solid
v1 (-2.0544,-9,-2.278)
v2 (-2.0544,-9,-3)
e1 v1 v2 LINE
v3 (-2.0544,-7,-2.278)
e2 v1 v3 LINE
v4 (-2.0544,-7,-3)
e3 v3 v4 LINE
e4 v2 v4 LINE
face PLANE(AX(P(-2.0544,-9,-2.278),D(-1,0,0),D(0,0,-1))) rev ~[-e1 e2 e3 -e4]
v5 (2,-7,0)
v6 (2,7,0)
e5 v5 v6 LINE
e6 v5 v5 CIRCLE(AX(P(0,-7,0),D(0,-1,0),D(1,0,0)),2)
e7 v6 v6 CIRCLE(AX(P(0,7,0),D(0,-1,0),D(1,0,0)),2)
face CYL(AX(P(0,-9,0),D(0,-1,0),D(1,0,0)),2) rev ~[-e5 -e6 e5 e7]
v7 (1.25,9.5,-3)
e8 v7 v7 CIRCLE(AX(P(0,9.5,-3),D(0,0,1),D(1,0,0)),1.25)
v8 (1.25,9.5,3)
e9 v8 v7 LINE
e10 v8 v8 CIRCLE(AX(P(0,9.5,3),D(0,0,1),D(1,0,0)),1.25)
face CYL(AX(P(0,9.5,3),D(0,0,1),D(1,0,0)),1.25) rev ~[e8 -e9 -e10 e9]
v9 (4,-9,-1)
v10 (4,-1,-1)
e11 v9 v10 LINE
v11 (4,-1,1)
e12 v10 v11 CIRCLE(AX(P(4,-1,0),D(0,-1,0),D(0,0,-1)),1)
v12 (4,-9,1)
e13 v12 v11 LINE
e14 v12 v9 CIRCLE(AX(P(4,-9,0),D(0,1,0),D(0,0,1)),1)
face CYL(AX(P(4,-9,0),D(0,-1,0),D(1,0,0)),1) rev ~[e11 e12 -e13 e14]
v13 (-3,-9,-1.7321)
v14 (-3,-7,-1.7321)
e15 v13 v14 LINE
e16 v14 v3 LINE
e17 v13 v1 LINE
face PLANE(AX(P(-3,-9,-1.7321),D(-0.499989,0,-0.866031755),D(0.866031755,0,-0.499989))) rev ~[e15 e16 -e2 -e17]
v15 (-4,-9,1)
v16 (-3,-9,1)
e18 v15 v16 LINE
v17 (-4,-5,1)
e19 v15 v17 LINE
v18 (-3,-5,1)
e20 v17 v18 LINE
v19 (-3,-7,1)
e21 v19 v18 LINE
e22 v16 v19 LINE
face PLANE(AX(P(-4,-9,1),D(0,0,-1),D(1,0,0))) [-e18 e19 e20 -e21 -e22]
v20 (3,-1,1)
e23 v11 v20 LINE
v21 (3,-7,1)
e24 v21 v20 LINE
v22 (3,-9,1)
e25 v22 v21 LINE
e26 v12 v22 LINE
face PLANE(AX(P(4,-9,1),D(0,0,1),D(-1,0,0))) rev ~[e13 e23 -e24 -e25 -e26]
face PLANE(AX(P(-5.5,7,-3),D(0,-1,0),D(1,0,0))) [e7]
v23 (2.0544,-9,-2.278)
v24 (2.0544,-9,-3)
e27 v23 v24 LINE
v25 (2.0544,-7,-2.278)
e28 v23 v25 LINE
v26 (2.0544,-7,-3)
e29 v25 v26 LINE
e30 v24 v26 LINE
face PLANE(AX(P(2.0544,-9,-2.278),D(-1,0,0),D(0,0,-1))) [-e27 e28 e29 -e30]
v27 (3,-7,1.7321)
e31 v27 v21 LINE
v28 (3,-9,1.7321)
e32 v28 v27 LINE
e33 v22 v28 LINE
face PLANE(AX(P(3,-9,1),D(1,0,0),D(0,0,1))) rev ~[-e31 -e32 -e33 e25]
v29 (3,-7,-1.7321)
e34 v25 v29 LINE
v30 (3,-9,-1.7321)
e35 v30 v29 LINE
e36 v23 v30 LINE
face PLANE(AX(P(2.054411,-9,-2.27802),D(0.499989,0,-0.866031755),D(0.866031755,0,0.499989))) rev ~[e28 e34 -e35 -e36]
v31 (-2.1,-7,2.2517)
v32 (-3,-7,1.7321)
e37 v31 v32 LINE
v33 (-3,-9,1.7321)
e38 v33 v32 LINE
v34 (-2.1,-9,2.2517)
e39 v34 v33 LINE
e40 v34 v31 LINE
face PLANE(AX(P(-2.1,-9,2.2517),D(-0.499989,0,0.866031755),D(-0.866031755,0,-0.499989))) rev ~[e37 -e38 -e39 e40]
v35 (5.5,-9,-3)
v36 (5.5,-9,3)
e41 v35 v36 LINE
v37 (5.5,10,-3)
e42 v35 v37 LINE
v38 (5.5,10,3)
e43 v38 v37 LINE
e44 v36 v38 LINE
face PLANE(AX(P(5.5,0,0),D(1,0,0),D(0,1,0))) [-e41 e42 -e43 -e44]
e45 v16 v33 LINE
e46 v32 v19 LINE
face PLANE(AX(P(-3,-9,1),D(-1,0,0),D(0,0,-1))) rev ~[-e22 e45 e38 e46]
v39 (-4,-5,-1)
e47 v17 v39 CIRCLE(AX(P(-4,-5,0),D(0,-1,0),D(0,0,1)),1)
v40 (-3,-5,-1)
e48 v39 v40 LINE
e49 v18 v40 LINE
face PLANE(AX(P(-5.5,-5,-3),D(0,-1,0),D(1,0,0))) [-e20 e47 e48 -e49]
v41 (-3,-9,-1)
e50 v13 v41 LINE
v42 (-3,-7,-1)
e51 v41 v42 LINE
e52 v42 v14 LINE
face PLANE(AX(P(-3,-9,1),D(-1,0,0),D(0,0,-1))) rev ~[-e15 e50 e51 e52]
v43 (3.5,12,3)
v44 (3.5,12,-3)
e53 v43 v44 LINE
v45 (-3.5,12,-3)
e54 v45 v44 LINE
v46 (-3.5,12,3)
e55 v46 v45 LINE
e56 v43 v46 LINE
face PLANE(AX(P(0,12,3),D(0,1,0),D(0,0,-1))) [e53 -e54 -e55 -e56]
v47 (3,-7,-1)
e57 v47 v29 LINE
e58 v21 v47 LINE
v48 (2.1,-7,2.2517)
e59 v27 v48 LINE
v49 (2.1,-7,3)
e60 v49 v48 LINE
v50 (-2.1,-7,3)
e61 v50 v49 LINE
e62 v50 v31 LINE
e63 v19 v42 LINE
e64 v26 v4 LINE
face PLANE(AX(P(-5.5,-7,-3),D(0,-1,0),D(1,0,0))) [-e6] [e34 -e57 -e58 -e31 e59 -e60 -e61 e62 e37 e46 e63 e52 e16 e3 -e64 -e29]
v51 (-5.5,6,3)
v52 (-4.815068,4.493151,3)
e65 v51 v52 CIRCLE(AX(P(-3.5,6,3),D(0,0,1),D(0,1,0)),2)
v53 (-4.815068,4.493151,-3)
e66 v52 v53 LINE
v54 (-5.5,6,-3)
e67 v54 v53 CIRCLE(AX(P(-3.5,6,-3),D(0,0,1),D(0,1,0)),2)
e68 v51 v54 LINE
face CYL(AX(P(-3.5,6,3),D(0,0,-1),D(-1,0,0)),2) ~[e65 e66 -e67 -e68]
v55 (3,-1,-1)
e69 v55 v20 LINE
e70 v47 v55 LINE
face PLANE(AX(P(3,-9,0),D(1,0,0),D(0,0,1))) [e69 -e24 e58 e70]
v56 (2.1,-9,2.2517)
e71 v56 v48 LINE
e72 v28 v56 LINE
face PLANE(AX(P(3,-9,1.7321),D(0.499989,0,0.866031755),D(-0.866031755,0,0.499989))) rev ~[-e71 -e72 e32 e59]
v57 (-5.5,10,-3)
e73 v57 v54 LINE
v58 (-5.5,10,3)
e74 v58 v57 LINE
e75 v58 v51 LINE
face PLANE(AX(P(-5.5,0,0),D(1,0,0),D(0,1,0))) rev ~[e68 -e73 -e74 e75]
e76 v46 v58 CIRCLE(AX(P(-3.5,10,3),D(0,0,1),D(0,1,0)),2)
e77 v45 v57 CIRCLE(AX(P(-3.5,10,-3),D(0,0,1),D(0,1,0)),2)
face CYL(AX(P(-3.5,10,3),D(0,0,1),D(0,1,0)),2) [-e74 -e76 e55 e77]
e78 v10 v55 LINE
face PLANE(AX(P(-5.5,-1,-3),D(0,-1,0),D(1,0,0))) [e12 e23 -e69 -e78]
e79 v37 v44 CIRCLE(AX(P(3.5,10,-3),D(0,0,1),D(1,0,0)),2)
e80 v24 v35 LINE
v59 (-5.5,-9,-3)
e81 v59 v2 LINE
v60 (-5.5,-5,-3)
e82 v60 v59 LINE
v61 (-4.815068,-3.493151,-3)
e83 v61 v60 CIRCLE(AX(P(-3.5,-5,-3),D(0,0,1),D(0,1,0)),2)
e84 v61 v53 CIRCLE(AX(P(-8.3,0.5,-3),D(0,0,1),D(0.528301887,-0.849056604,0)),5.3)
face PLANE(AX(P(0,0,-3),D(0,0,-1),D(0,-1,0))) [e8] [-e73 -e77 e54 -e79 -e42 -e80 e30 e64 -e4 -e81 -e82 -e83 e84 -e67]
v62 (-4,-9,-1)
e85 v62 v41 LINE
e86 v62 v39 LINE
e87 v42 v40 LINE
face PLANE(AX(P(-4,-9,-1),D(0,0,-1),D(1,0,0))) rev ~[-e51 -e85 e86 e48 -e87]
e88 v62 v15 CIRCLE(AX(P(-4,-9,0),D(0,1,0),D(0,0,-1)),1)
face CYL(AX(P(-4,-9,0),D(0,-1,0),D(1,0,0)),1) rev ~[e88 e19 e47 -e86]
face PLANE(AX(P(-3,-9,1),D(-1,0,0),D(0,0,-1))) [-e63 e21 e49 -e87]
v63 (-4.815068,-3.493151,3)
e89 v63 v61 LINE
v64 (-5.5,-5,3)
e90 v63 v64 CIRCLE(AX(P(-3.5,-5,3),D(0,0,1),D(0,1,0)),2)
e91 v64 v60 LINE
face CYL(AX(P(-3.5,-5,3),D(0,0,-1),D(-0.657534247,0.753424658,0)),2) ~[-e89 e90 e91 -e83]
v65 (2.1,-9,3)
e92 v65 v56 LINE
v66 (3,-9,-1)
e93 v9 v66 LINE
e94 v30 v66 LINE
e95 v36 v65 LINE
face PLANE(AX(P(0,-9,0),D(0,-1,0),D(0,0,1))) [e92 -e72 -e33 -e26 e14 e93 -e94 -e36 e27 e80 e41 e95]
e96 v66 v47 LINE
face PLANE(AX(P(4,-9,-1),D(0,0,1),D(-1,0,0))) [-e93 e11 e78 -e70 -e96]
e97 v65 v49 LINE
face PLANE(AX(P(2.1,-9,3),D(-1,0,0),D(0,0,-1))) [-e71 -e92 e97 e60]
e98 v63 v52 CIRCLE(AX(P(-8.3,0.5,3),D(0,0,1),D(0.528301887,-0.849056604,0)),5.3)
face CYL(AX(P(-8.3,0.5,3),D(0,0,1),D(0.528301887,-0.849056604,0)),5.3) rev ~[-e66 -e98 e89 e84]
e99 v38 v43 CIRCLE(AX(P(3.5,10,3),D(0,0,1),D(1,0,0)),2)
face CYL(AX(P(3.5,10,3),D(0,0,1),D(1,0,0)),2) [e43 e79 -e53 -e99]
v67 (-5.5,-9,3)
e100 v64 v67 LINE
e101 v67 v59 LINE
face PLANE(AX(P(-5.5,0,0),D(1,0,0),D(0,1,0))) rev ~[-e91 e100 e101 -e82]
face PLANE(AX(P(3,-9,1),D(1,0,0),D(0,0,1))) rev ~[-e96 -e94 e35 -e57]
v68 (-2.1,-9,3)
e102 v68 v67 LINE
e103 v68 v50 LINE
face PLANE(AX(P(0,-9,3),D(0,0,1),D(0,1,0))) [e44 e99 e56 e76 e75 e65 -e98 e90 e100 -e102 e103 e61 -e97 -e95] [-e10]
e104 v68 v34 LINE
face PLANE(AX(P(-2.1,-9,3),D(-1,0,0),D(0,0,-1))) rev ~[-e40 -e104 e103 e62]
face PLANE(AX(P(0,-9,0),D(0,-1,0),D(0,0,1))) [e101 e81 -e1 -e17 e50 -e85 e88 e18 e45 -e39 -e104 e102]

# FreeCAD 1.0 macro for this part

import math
import FreeCAD as App
import Part
import Sketcher
Q = App.Units.Quantity


def edges_at(feature, points):
    """Names of the edges that pass closest to the given points."""
    edges = feature.Shape.Edges
    near = lambda p: min(range(len(edges)), key=lambda i: edges[i].distToShape(Part.Vertex(*p))[0])
    return sorted({f"Edge{near(p) + 1}" for p in points})


def add_polygon(sketch, points):
    """Adds a closed chain of lines whose ends are joined by coincident constraints."""
    first, n = sketch.GeometryCount, len(points)
    for a, b in zip(points, points[1:] + points[:1]):
        sketch.addGeometry(Part.LineSegment(App.Vector(*a, 0), App.Vector(*b, 0)), False)
    for i in range(n):
        sketch.addConstraint(Sketcher.Constraint("Coincident", first + i, 2, first + (i + 1) % n, 1))

doc = App.newDocument("Part")
body = doc.addObject("PartDesign::Body", "Body")

sketch1 = body.newObject("Sketcher::SketchObject", "Sketch")
sketch1.AttachmentSupport = (doc.getObject("YZ_Plane"), [""])
sketch1.MapMode = "FlatFace"
add_polygon(sketch1, [(-9, 3), (-9, -3), (12, -3), (12, 3)])
sketch1.addConstraint([
    Sketcher.Constraint("Vertical", 0),
    Sketcher.Constraint("Horizontal", 1),
    Sketcher.Constraint("Vertical", 2),
    Sketcher.Constraint("Horizontal", 3),
    Sketcher.Constraint("DistanceY", 0, 2, 0, 1, 6.0),
    Sketcher.Constraint("DistanceX", -1, 1, 1, 2, 12.0),
    Sketcher.Constraint("DistanceX", 1, 1, 1, 2, 21.0),
    Sketcher.Constraint("DistanceY", 0, 2, -1, 1, 3.0),
])
pad1 = body.newObject("PartDesign::Pad", "Pad")
pad1.Profile = sketch1
pad1.Length = 11
pad1.Midplane = True

sketch2 = body.newObject("Sketcher::SketchObject", "Sketch001")
sketch2.AttachmentSupport = (doc.getObject("XZ_Plane"), [""])
sketch2.MapMode = "FlatFace"
sketch2.AttachmentOffset = App.Placement(App.Vector(0, 0, 9), App.Rotation())
sketch2.addGeometry([
    Part.LineSegment(App.Vector(4, 1, 0), App.Vector(3, 1, 0)),
    Part.LineSegment(App.Vector(3, 1, 0), App.Vector(3, -1, 0)),
    Part.LineSegment(App.Vector(3, -1, 0), App.Vector(4, -1, 0)),
    Part.ArcOfCircle(Part.Circle(App.Vector(4, 0, 0), App.Vector(0, 0, 1), 1), math.radians(-90), math.radians(90)),
], False)
sketch2.addConstraint([
    Sketcher.Constraint("Coincident", 0, 2, 1, 1),
    Sketcher.Constraint("Coincident", 1, 2, 2, 1),
    Sketcher.Constraint("Tangent", 2, 2, 3, 1),
    Sketcher.Constraint("Tangent", 3, 2, 0, 1),
    Sketcher.Constraint("Horizontal", 0),
    Sketcher.Constraint("Vertical", 1),
    Sketcher.Constraint("Horizontal", 2),
    Sketcher.Constraint("PointOnObject", 3, 3, -1),
    Sketcher.Constraint("Radius", 3, 1.0),
    Sketcher.Constraint("DistanceX", -1, 1, 3, 3, 4.0),
    Sketcher.Constraint("DistanceX", 0, 2, 0, 1, 1.0),
])
pocket1 = body.newObject("PartDesign::Pocket", "Pocket")
pocket1.Profile = sketch2
pocket1.Length = 8

sketch3 = body.newObject("Sketcher::SketchObject", "Sketch002")
sketch3.AttachmentSupport = (doc.getObject("XZ_Plane"), [""])
sketch3.MapMode = "FlatFace"
sketch3.AttachmentOffset = App.Placement(App.Vector(0, 0, 9), App.Rotation())
add_polygon(sketch3, [(-3, -1.7), (-2.1, -2.3), (-2.1, -3), (-0.8, -3), (0, -3.5), (0.8, -3), (2.1, -3), (2.1, -2.3), (3, -1.7), (3, 1.7), (2.1, 2.3), (2.1, 3), (0.8, 3), (0, 3.5), (-0.8, 3), (-2.1, 3), (-2.1, 2.3), (-3, 1.7)])
sketch3.addConstraint([
    Sketcher.Constraint("Vertical", 1),
    Sketcher.Constraint("Horizontal", 2),
    Sketcher.Constraint("Horizontal", 5),
    Sketcher.Constraint("Vertical", 6),
    Sketcher.Constraint("Vertical", 8),
    Sketcher.Constraint("Vertical", 10),
    Sketcher.Constraint("Horizontal", 11),
    Sketcher.Constraint("Horizontal", 14),
    Sketcher.Constraint("Vertical", 15),
    Sketcher.Constraint("Vertical", 17),
    Sketcher.Constraint("Symmetric", 2, 2, 11, 2, -1, 1),
    Sketcher.Constraint("Symmetric", 3, 2, 12, 2, -1, 1),
    Sketcher.Constraint("Symmetric", 4, 2, 13, 2, -1, 1),
    Sketcher.Constraint("Symmetric", 7, 2, 16, 2, -1, 1),
    Sketcher.Constraint("Symmetric", 2, 2, 4, 2, -2),
    Sketcher.Constraint("Symmetric", 0, 2, 6, 2, -2),
    Sketcher.Constraint("Symmetric", 9, 2, 15, 2, -2),
    Sketcher.Constraint("PointOnObject", 3, 2, -2),
    Sketcher.Constraint("Parallel", 0, 3),
    Sketcher.Constraint("Parallel", 4, 7),
    Sketcher.Constraint("Parallel", 3, 9),
    Sketcher.Constraint("Parallel", 13, 16),
    Sketcher.Constraint("DistanceY", 5, 2, 10, 2, 6.0),
    Sketcher.Constraint("DistanceX", 14, 2, 10, 2, 4.2),
    Sketcher.Constraint("Angle", 0, Q("-29.9993 deg")),
    Sketcher.Constraint("DistanceX", -1, 1, 7, 2, 3.0),
    Sketcher.Constraint("DistanceY", 1, 2, 1, 1, 0.722),
    Sketcher.Constraint("DistanceY", 6, 2, 8, 2, 4.01),
    Sketcher.Constraint("DistanceX", 2, 1, 2, 2, 1.2505),
])
pocket2 = body.newObject("PartDesign::Pocket", "Pocket001")
pocket2.Profile = sketch3
pocket2.Length = 2

sketch4 = body.newObject("Sketcher::SketchObject", "Sketch003")
sketch4.AttachmentSupport = (doc.getObject("XY_Plane"), [""])
sketch4.MapMode = "FlatFace"
sketch4.AttachmentOffset = App.Placement(App.Vector(0, 0, 3), App.Rotation())
sketch4.addGeometry([
    Part.ArcOfCircle(Part.Circle(App.Vector(-3.5, 10, 0), App.Vector(0, 0, 1), 2), math.radians(90), math.radians(180)),
    Part.LineSegment(App.Vector(-3.5, 12, 0), App.Vector(-5.5, 12, 0)),
    Part.LineSegment(App.Vector(-5.5, 12, 0), App.Vector(-5.5, 10, 0)),
    Part.LineSegment(App.Vector(5.5, 10, 0), App.Vector(5.5, 12, 0)),
    Part.LineSegment(App.Vector(5.5, 12, 0), App.Vector(3.5, 12, 0)),
    Part.ArcOfCircle(Part.Circle(App.Vector(3.5, 10, 0), App.Vector(0, 0, 1), 2), math.radians(0), math.radians(90)),
    Part.Circle(App.Vector(0, 9.5, 0), App.Vector(0, 0, 1), 1.2),
], False)
sketch4.addConstraint([
    Sketcher.Constraint("Tangent", 0, 1, 1, 1),
    Sketcher.Constraint("Coincident", 1, 2, 2, 1),
    Sketcher.Constraint("Tangent", 2, 2, 0, 2),
    Sketcher.Constraint("Coincident", 3, 2, 4, 1),
    Sketcher.Constraint("Tangent", 4, 2, 5, 2),
    Sketcher.Constraint("Tangent", 5, 1, 3, 1),
    Sketcher.Constraint("Horizontal", 1),
    Sketcher.Constraint("Vertical", 2),
    Sketcher.Constraint("Vertical", 3),
    Sketcher.Constraint("Horizontal", 4),
    Sketcher.Constraint("Equal", 0, 5),
    Sketcher.Constraint("Symmetric", 0, 3, 5, 3, -2),
    Sketcher.Constraint("PointOnObject", 6, 3, -2),
    Sketcher.Constraint("Radius", 0, 2.0),
    Sketcher.Constraint("Diameter", 6, 2.5),
    Sketcher.Constraint("DistanceY", 6, 3, 0, 1, 2.5),
    Sketcher.Constraint("DistanceY", -1, 1, 0, 3, 10.0),
    Sketcher.Constraint("DistanceX", 0, 3, 5, 3, 7.0),
])
pocket3 = body.newObject("PartDesign::Pocket", "Pocket002")
pocket3.Profile = sketch4
pocket3.Type = "ThroughAll"

sketch5 = body.newObject("Sketcher::SketchObject", "Sketch004")
sketch5.AttachmentSupport = (doc.getObject("XZ_Plane"), [""])
sketch5.MapMode = "FlatFace"
sketch5.AttachmentOffset = App.Placement(App.Vector(0, 0, 9), App.Rotation())
sketch5.addGeometry(Part.Circle(App.Vector(0, 0, 0), App.Vector(0, 0, 1), 2), False)
sketch5.addConstraint([
    Sketcher.Constraint("Coincident", 0, 3, -1, 1),
    Sketcher.Constraint("Diameter", 0, 4.0),
])
pocket4 = body.newObject("PartDesign::Pocket", "Pocket003")
pocket4.Profile = sketch5
pocket4.Length = 16

sketch6 = body.newObject("Sketcher::SketchObject", "Sketch005")
sketch6.AttachmentSupport = (doc.getObject("XZ_Plane"), [""])
sketch6.MapMode = "FlatFace"
sketch6.AttachmentOffset = App.Placement(App.Vector(0, 0, 9), App.Rotation())
sketch6.addGeometry([
    Part.ArcOfCircle(Part.Circle(App.Vector(-4, 0, 0), App.Vector(0, 0, 1), 1), math.radians(90), math.radians(270)),
    Part.LineSegment(App.Vector(-4, -1, 0), App.Vector(-3, -1, 0)),
    Part.LineSegment(App.Vector(-3, -1, 0), App.Vector(-3, 1, 0)),
    Part.LineSegment(App.Vector(-3, 1, 0), App.Vector(-4, 1, 0)),
], False)
sketch6.addConstraint([
    Sketcher.Constraint("Tangent", 0, 2, 1, 1),
    Sketcher.Constraint("Coincident", 1, 2, 2, 1),
    Sketcher.Constraint("Coincident", 2, 2, 3, 1),
    Sketcher.Constraint("Tangent", 3, 2, 0, 1),
    Sketcher.Constraint("Horizontal", 1),
    Sketcher.Constraint("Vertical", 2),
    Sketcher.Constraint("Horizontal", 3),
    Sketcher.Constraint("PointOnObject", 0, 3, -1),
    Sketcher.Constraint("Radius", 0, 1.0),
    Sketcher.Constraint("DistanceX", 0, 3, -1, 1, 4.0),
    Sketcher.Constraint("DistanceX", 1, 1, 1, 2, 1.0),
])
pocket5 = body.newObject("PartDesign::Pocket", "Pocket004")
pocket5.Profile = sketch6
pocket5.Length = 4

sketch7 = body.newObject("Sketcher::SketchObject", "Sketch006")
sketch7.AttachmentSupport = (doc.getObject("XY_Plane"), [""])
sketch7.MapMode = "FlatFace"
sketch7.AttachmentOffset = App.Placement(App.Vector(0, 0, 3), App.Rotation())
sketch7.addGeometry([
    Part.LineSegment(App.Vector(-6, 5, 0), App.Vector(-6, -4, 0)),
    Part.ArcOfCircle(Part.Circle(App.Vector(-8, 0, 0), App.Vector(0, 0, 1), 5), math.radians(-58), math.radians(58)),
], False)
sketch7.addConstraint([
    Sketcher.Constraint("Coincident", 0, 1, 1, 2),
    Sketcher.Constraint("Coincident", 1, 1, 0, 2),
    Sketcher.Constraint("Vertical", 0),
    Sketcher.Constraint("DistanceY", 0, 2, 0, 1, 9.0),
    Sketcher.Constraint("DistanceY", -1, 1, 0, 1, 5.0),
    Sketcher.Constraint("Radius", 1, 5.3),
    Sketcher.Constraint("DistanceX", 1, 3, -1, 1, 8.3),
])
pocket6 = body.newObject("PartDesign::Pocket", "Pocket005")
pocket6.Profile = sketch7
pocket6.Type = "ThroughAll"
doc.recompute()

fillet = body.newObject("PartDesign::Fillet", "Fillet")
fillet.Base = (pocket6, edges_at(pocket6, [(-5.5, 5, 0), (-5.5, -4, 0)]))
fillet.Radius = 2

doc.recompute()
